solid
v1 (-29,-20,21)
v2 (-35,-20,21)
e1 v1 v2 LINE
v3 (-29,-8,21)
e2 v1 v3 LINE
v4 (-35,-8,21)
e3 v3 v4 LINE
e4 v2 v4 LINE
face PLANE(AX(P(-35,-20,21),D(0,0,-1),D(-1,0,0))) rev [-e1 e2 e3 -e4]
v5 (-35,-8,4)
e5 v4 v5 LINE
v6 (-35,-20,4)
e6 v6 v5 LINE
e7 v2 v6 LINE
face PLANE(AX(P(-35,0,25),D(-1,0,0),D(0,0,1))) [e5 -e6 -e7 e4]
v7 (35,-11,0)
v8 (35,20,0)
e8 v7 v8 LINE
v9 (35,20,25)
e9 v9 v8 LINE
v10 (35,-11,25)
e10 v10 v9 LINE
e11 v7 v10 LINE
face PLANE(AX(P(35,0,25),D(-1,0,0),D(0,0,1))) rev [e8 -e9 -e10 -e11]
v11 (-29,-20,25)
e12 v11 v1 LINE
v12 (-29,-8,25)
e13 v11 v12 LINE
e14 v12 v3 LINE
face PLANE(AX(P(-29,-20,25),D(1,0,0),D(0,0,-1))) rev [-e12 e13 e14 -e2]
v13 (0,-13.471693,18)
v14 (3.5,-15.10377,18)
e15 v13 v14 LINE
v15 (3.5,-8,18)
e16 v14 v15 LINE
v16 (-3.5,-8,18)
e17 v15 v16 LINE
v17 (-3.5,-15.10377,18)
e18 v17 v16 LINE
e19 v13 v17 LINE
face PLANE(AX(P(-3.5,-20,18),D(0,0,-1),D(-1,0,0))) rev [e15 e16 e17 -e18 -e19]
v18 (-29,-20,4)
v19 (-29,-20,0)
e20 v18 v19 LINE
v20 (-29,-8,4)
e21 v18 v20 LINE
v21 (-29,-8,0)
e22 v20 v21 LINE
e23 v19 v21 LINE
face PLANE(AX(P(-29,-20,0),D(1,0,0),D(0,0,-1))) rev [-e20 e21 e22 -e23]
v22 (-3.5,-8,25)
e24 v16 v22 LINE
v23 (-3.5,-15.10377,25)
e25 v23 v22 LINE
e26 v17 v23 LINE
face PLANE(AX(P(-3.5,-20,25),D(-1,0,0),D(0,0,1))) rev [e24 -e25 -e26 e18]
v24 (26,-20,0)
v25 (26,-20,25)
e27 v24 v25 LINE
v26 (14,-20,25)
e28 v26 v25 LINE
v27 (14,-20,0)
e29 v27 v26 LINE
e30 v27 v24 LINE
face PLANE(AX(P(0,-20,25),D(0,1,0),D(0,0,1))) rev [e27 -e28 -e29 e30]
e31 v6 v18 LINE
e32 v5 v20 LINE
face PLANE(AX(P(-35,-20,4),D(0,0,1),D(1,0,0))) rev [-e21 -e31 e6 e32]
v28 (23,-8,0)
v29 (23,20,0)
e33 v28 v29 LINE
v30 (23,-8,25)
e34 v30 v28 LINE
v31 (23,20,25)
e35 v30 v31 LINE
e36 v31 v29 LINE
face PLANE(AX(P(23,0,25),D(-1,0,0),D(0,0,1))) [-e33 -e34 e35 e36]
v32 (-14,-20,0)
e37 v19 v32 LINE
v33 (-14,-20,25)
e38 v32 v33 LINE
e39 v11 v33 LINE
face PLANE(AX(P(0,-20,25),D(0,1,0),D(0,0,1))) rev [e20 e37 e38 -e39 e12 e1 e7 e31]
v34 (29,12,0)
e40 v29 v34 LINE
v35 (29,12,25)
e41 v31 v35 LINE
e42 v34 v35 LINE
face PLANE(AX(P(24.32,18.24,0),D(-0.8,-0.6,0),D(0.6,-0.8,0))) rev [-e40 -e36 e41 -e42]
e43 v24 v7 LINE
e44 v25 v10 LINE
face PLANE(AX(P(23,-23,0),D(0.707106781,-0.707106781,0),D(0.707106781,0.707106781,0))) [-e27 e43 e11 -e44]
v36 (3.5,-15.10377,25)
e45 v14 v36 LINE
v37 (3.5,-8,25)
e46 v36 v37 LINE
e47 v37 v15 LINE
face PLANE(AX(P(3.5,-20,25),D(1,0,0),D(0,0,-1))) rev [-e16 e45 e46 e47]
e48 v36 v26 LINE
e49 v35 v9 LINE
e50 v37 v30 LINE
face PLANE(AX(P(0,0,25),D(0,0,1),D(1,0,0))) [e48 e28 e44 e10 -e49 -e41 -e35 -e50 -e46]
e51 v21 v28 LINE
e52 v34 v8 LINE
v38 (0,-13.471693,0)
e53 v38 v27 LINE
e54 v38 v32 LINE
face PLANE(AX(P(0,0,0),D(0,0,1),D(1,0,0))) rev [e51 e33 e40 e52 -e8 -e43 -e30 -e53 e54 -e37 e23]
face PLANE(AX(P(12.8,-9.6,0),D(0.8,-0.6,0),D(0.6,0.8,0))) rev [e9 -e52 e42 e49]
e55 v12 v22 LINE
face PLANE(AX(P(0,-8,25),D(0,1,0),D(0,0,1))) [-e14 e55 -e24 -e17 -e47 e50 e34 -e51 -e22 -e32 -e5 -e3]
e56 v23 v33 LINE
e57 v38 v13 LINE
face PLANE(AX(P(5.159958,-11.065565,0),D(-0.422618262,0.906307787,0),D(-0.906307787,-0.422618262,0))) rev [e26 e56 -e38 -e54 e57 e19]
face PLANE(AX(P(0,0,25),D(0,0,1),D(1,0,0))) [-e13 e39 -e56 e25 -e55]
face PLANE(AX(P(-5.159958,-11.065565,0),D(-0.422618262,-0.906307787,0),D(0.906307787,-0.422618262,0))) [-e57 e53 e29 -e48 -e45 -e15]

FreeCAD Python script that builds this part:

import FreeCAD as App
import Part
import Sketcher
Q = App.Units.Quantity


def add_polygon(sketch, points):
    """Adds a closed chain of lines whose ends are joined by coincident constraints."""
    first, n = sketch.GeometryCount, len(points)
    for a, b in zip(points, points[1:] + points[:1]):
        sketch.addGeometry(Part.LineSegment(App.Vector(*a, 0), App.Vector(*b, 0)), False)
    for i in range(n):
        sketch.addConstraint(Sketcher.Constraint("Coincident", first + i, 2, first + (i + 1) % n, 1))

doc = App.newDocument("Part")
params = doc.addObject("Spreadsheet::Sheet", "Params")
for row, (alias, value) in enumerate([
    ("sketch1_width", "58 mm"),
    ("sketch1_width2", "70 mm"),
    ("sketch1_height", "40 mm"),
    ("pad1_length", "25 mm"),
    ("sketch2_width", "9 mm"),
    ("sketch2_width2", "28 mm"),
    ("sketch2_width3", "12 mm"),
    ("sketch2_length", "10 mm"),
    ("sketch3_width", "6 mm"),
    ("sketch3_width2", "7 mm"),
    ("sketch3_height", "4 mm"),
], start=1):
    params.set(f"A{row}", alias)
    params.set(f"B{row}", "=" + value)
    params.setAlias(f"B{row}", alias)

body = doc.addObject("PartDesign::Body", "Body")

# Sketch on XY plane
sketch1 = body.newObject("Sketcher::SketchObject", "Sketch")
sketch1.AttachmentSupport = (doc.getObject("XY_Plane"), [""])
sketch1.MapMode = "FlatFace"
add_polygon(sketch1, [(23, -8), (-35, -8), (-35, -20), (35, -20), (35, 20), (23, 20)])  # lines 0-5
sketch1.addConstraint([
    Sketcher.Constraint("Horizontal", 0),
    Sketcher.Constraint("Vertical", 1),
    Sketcher.Constraint("Horizontal", 2),
    Sketcher.Constraint("Vertical", 3),
    Sketcher.Constraint("Horizontal", 4),
    Sketcher.Constraint("Vertical", 5),
    Sketcher.Constraint("Symmetric", 1, 2, 3, 2, -1, 1),
    Sketcher.Constraint("Equal", 4, 1),
    Sketcher.Constraint("DistanceX", 0, 2, 0, 1, 58.0),
    Sketcher.Constraint("DistanceX", 2, 1, 2, 2, 70.0),
    Sketcher.Constraint("DistanceY", 3, 1, 3, 2, 40.0),
])
sketch1.setExpression("Constraints[14]", "Params.sketch1_width")
sketch1.setExpression("Constraints[15]", "Params.sketch1_width2")
sketch1.setExpression("Constraints[16]", "Params.sketch1_height")
pad1 = body.newObject("PartDesign::Pad", "Pad")
pad1.Profile = sketch1
pad1.setExpression("Length", "Params.pad1_length")

# Sketch on XY plane
sketch2 = body.newObject("Sketcher::SketchObject", "Sketch001")
sketch2.AttachmentSupport = (doc.getObject("XY_Plane"), [""])
sketch2.MapMode = "FlatFace"
sketch2.AttachmentOffset = App.Placement(App.Vector(0, 0, 25), App.Rotation())
add_polygon(sketch2, [(35, -20), (35, -11), (26, -20)])  # lines 0-2
add_polygon(sketch2, [(-14, -20), (14, -20), (0, -13)])  # lines 3-5
add_polygon(sketch2, [(23, 20), (29, 12), (35, 20)])  # lines 6-8
sketch2.addConstraint([
    Sketcher.Constraint("Vertical", 0),
    Sketcher.Constraint("Horizontal", 2),
    Sketcher.Constraint("Horizontal", 3),
    Sketcher.Constraint("Horizontal", 8),
    Sketcher.Constraint("Symmetric", 2, 2, 7, 2, -1),
    Sketcher.Constraint("PointOnObject", 4, 2, -2),
    Sketcher.Constraint("Horizontal", 2, 2, 3, 2),
    Sketcher.Constraint("Equal", 2, 0),
    Sketcher.Constraint("Equal", 4, 5),
    Sketcher.Constraint("Equal", 6, 7),
    Sketcher.Constraint("DistanceX", 2, 1, 2, 2, 9.0),
    Sketcher.Constraint("DistanceX", 3, 1, 3, 2, 28.0),
    Sketcher.Constraint("DistanceX", 8, 2, 8, 1, 12.0),
    Sketcher.Constraint("Angle", 4, Q("155 deg")),
    Sketcher.Constraint("Distance", 6, 10.0),
    Sketcher.Constraint("DistanceX", -1, 1, 0, 2, 35.0),
    Sketcher.Constraint("DistanceY", 0, 2, -1, 1, 11.0),
])
sketch2.setExpression("Constraints[19]", "Params.sketch2_width")
sketch2.setExpression("Constraints[20]", "Params.sketch2_width2")
sketch2.setExpression("Constraints[21]", "Params.sketch2_width3")
sketch2.setExpression("Constraints[23]", "Params.sketch2_length")
pocket1 = body.newObject("PartDesign::Pocket", "Pocket")
pocket1.Profile = sketch2
pocket1.Type = "ThroughAll"

# Sketch on XZ plane
sketch3 = body.newObject("Sketcher::SketchObject", "Sketch002")
sketch3.AttachmentSupport = (doc.getObject("XZ_Plane"), [""])
sketch3.MapMode = "FlatFace"
sketch3.AttachmentOffset = App.Placement(App.Vector(0, 0, 8), App.Rotation())
add_polygon(sketch3, [(-35, 21), (-35, 25), (-29, 25), (-29, 21)])  # lines 0-3
add_polygon(sketch3, [(-35, 0), (-35, 4), (-29, 4), (-29, 0)])  # lines 4-7
add_polygon(sketch3, [(-3.5, 18), (-3.5, 25), (3.5, 25), (3.5, 18)])  # lines 8-11
sketch3.addConstraint([
    Sketcher.Constraint("Vertical", 0),
    Sketcher.Constraint("Horizontal", 1),
    Sketcher.Constraint("Vertical", 2),
    Sketcher.Constraint("Horizontal", 3),
    Sketcher.Constraint("Vertical", 4),
    Sketcher.Constraint("Horizontal", 5),
    Sketcher.Constraint("Vertical", 6),
    Sketcher.Constraint("Horizontal", 7),
    Sketcher.Constraint("Vertical", 8),
    Sketcher.Constraint("Horizontal", 9),
    Sketcher.Constraint("Vertical", 10),
    Sketcher.Constraint("Horizontal", 11),
    Sketcher.Constraint("PointOnObject", 6, 2, -1),
    Sketcher.Constraint("Horizontal", 1, 2, 8, 2),
    Sketcher.Constraint("Vertical", 3, 2, 4, 2),
    Sketcher.Constraint("Vertical", 2, 2, 5, 2),
    Sketcher.Constraint("Equal", 2, 4),
    Sketcher.Constraint("Equal", 11, 8),
    Sketcher.Constraint("DistanceX", 1, 1, 1, 2, 6.0),
    Sketcher.Constraint("DistanceX", 9, 1, 9, 2, 7.0),
    Sketcher.Constraint("DistanceY", 0, 1, 0, 2, 4.0),
    Sketcher.Constraint("DistanceX", 0, 2, -1, 1, 35.0),
    Sketcher.Constraint("DistanceY", -1, 1, 0, 2, 25.0),
    Sketcher.Constraint("DistanceX", 8, 2, -1, 1, 3.5),
])
sketch3.setExpression("Constraints[30]", "Params.sketch3_width")
sketch3.setExpression("Constraints[31]", "Params.sketch3_width2")
sketch3.setExpression("Constraints[32]", "Params.sketch3_height")
pocket2 = body.newObject("PartDesign::Pocket", "Pocket001")
pocket2.Profile = sketch3
pocket2.Type = "ThroughAll"
pocket2.Reversed = True

doc.recompute()
